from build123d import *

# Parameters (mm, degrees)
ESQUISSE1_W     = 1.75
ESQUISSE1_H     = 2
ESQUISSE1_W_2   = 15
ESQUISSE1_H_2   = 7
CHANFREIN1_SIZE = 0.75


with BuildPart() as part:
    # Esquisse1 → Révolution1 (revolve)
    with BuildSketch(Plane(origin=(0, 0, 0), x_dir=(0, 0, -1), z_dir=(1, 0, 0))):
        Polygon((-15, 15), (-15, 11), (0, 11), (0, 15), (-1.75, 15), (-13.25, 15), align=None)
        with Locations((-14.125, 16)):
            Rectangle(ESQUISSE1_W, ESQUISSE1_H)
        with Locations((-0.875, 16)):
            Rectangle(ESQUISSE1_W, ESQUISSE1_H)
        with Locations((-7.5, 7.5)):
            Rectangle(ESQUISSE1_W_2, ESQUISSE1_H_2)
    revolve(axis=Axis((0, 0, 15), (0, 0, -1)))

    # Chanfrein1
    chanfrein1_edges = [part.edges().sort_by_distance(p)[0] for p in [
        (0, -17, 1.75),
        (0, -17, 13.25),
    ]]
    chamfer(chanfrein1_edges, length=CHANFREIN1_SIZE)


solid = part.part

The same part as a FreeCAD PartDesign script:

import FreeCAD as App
import Part
import Sketcher

V = App.Vector
Q = App.Units.Quantity


def edges_at(feature, points):
    """Names of the edges that pass closest to the given points."""
    edges = feature.Shape.Edges
    near = lambda p: min(range(len(edges)), key=lambda i: edges[i].distToShape(Part.Vertex(*p))[0])
    return sorted({f"Edge{near(p) + 1}" for p in points})

doc = App.newDocument("Part")
params = doc.addObject("Spreadsheet::Sheet", "Params")
for row, (alias, value) in enumerate([
    ("sketch1_width", "2 mm"),
    ("sketch1_width2", "13 mm"),
    ("sketch1_height", "15 mm"),
    ("sketch1_height2", "11.5 mm"),
    ("revolution_angle", "360 deg"),
    ("chamfer_size", "0.75 mm"),
], start=1):
    params.set(f"A{row}", alias)
    params.set(f"B{row}", "=" + value)
    params.setAlias(f"B{row}", alias)

body = doc.addObject("PartDesign::Body", "Body")

sketch1 = doc.addObject("Sketcher::SketchObject", "Sketch")
body.addObject(sketch1)
sketch1.AttachmentSupport = (doc.YZ_Plane, [""])
sketch1.MapMode = "FlatFace"
sketch1.addGeometry([
    Part.LineSegment(V(17, 0, 0), V(17, 1.8, 0)),
    Part.LineSegment(V(17, 1.8, 0), V(15, 1.8, 0)),
    Part.LineSegment(V(15, 1.8, 0), V(15, 13.2, 0)),
    Part.LineSegment(V(15, 13.2, 0), V(17, 13.2, 0)),
    Part.LineSegment(V(17, 13.2, 0), V(17, 15, 0)),
    Part.LineSegment(V(17, 15, 0), V(4, 15, 0)),
    Part.LineSegment(V(4, 15, 0), V(4, 0, 0)),
    Part.LineSegment(V(4, 0, 0), V(17, 0, 0)),
], False)
sketch1.addConstraint([
    Sketcher.Constraint("Coincident", 0, 2, 1, 1),
    Sketcher.Constraint("Coincident", 1, 2, 2, 1),
    Sketcher.Constraint("Coincident", 2, 2, 3, 1),
    Sketcher.Constraint("Coincident", 3, 2, 4, 1),
    Sketcher.Constraint("Coincident", 4, 2, 5, 1),
    Sketcher.Constraint("Coincident", 5, 2, 6, 1),
    Sketcher.Constraint("Coincident", 6, 2, 7, 1),
    Sketcher.Constraint("Coincident", 7, 2, 0, 1),
    Sketcher.Constraint("Vertical", 0),
    Sketcher.Constraint("Horizontal", 1),
    Sketcher.Constraint("Vertical", 2),
    Sketcher.Constraint("Horizontal", 3),
    Sketcher.Constraint("Vertical", 4),
    Sketcher.Constraint("Horizontal", 5),
    Sketcher.Constraint("Vertical", 6),
    Sketcher.Constraint("Horizontal", 7),
    Sketcher.Constraint("PointOnObject", 6, 2, -1),
    Sketcher.Constraint("Vertical", 0, 2, 3, 2),
    Sketcher.Constraint("Equal", 0, 4),
    Sketcher.Constraint("DistanceX", 1, 2, 1, 1, Q("2 mm")),
    Sketcher.Constraint("DistanceX", 5, 2, 5, 1, Q("13 mm")),
    Sketcher.Constraint("DistanceY", 6, 2, 6, 1, Q("15 mm")),
    Sketcher.Constraint("DistanceY", 2, 1, 2, 2, Q("11.5 mm")),
    Sketcher.Constraint("DistanceX", -1, 1, 0, 2, Q("17 mm")),
])
sketch1.setExpression("Constraints[19]", "Params.sketch1_width")
sketch1.setExpression("Constraints[20]", "Params.sketch1_width2")
sketch1.setExpression("Constraints[21]", "Params.sketch1_height")
sketch1.setExpression("Constraints[22]", "Params.sketch1_height2")
revolution = doc.addObject("PartDesign::Revolution", "Revolution")
body.addObject(revolution)
revolution.Profile = sketch1
revolution.ReferenceAxis = (sketch1, ["V_Axis"])
revolution.setExpression("Angle", "Params.revolution_angle")
doc.recompute()

chamfer = doc.addObject("PartDesign::Chamfer", "Chamfer")
body.addObject(chamfer)
chamfer.Base = (revolution, edges_at(revolution, [(0, -17, 1.75), (0, -17, 13.25)]))
chamfer.setExpression("Size", "Params.chamfer_size")

doc.recompute()
